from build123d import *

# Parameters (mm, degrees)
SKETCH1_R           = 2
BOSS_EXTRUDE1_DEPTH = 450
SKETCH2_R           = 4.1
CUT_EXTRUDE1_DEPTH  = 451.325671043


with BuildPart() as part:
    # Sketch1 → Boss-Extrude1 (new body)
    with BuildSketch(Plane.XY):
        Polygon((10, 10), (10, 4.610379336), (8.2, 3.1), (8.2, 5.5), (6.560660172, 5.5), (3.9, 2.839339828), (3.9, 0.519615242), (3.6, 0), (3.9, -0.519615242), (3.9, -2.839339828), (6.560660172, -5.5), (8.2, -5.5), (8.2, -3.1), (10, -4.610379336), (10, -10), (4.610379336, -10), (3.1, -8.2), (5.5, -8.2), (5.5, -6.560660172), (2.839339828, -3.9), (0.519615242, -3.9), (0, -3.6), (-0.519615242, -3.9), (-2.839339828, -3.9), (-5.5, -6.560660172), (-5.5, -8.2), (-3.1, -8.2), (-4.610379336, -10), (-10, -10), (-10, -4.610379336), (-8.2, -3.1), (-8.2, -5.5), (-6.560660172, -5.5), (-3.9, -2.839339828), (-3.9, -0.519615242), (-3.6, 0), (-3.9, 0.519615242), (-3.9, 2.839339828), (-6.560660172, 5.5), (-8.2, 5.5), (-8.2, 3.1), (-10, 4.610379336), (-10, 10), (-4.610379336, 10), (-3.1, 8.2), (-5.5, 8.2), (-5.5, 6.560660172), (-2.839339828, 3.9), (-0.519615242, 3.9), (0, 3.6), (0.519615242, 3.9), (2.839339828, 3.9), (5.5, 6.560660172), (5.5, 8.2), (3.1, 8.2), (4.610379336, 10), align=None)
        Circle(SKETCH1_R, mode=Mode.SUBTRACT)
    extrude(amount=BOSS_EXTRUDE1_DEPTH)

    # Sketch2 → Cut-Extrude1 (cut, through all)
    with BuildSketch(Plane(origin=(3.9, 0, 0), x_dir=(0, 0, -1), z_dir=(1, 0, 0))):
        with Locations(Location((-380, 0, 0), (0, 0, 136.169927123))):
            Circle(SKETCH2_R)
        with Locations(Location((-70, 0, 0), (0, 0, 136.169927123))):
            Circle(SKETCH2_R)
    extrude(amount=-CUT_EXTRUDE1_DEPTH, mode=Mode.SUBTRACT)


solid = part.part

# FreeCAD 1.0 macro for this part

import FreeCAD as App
import Part
import Sketcher
from FreeCAD import Vector
Q = App.Units.Quantity


def add_polygon(sketch, points):
    """Adds a closed chain of lines whose ends are joined by coincident constraints."""
    first, n = sketch.GeometryCount, len(points)
    for a, b in zip(points, points[1:] + points[:1]):
        sketch.addGeometry(Part.LineSegment(App.Vector(*a, 0), App.Vector(*b, 0)), False)
    for i in range(n):
        sketch.addConstraint(Sketcher.Constraint("Coincident", first + i, 2, first + (i + 1) % n, 1))

doc = App.newDocument("Part")
body = doc.addObject("PartDesign::Body", "Body")

sketch1 = body.newObject("Sketcher::SketchObject", "Sketch")
sketch1.AttachmentSupport = (doc.getObject("XY_Plane"), [""])
sketch1.MapMode = "FlatFace"
add_polygon(sketch1, [(10, 4.6), (10, 10), (4.6, 10), (3.1, 8.2), (5.5, 8.2), (5.5, 6.6), (2.8, 3.9), (0.5, 3.9), (0, 3.6), (-0.5, 3.9), (-2.8, 3.9), (-5.5, 6.6), (-5.5, 8.2), (-3.1, 8.2), (-4.6, 10), (-10, 10), (-10, 4.6), (-8.2, 3.1), (-8.2, 5.5), (-6.6, 5.5), (-3.9, 2.8), (-3.9, 0.5), (-3.6, 0), (-3.9, -0.5), (-3.9, -2.8), (-6.6, -5.5), (-8.2, -5.5), (-8.2, -3.1), (-10, -4.6), (-10, -10), (-4.6, -10), (-3.1, -8.2), (-5.5, -8.2), (-5.5, -6.6), (-2.8, -3.9), (-0.5, -3.9), (0, -3.6), (0.5, -3.9), (2.8, -3.9), (5.5, -6.6), (5.5, -8.2), (3.1, -8.2), (4.6, -10), (10, -10), (10, -4.6), (8.2, -3.1), (8.2, -5.5), (6.6, -5.5), (3.9, -2.8), (3.9, -0.5), (3.6, 0), (3.9, 0.5), (3.9, 2.8), (6.6, 5.5), (8.2, 5.5), (8.2, 3.1)])
sketch1.addGeometry(Part.Circle(Vector(0, 0, 0), Vector(0, 0, 1), 2), False)
sketch1.addConstraint([
    Sketcher.Constraint("Vertical", 0),
    Sketcher.Constraint("Horizontal", 1),
    Sketcher.Constraint("Horizontal", 3),
    Sketcher.Constraint("Vertical", 4),
    Sketcher.Constraint("Horizontal", 6),
    Sketcher.Constraint("Horizontal", 9),
    Sketcher.Constraint("Vertical", 11),
    Sketcher.Constraint("Horizontal", 12),
    Sketcher.Constraint("Horizontal", 14),
    Sketcher.Constraint("Vertical", 15),
    Sketcher.Constraint("Vertical", 17),
    Sketcher.Constraint("Horizontal", 18),
    Sketcher.Constraint("Vertical", 20),
    Sketcher.Constraint("Vertical", 23),
    Sketcher.Constraint("Horizontal", 25),
    Sketcher.Constraint("Vertical", 26),
    Sketcher.Constraint("Vertical", 28),
    Sketcher.Constraint("Horizontal", 29),
    Sketcher.Constraint("Horizontal", 31),
    Sketcher.Constraint("Vertical", 32),
    Sketcher.Constraint("Horizontal", 34),
    Sketcher.Constraint("Horizontal", 37),
    Sketcher.Constraint("Vertical", 39),
    Sketcher.Constraint("Horizontal", 40),
    Sketcher.Constraint("Horizontal", 42),
    Sketcher.Constraint("Vertical", 43),
    Sketcher.Constraint("Vertical", 45),
    Sketcher.Constraint("Horizontal", 46),
    Sketcher.Constraint("Vertical", 48),
    Sketcher.Constraint("Vertical", 51),
    Sketcher.Constraint("Horizontal", 53),
    Sketcher.Constraint("Vertical", 54),
    Sketcher.Constraint("Coincident", 56, 3, -1, 1),
    Sketcher.Constraint("Symmetric", 0, 2, 28, 2, -1, 1),
    Sketcher.Constraint("Symmetric", 2, 2, 30, 2, -1, 1),
    Sketcher.Constraint("Symmetric", 4, 2, 32, 2, -1, 1),
    Sketcher.Constraint("Symmetric", 5, 2, 33, 2, -1, 1),
    Sketcher.Constraint("Symmetric", 7, 2, 35, 2, -1, 1),
    Sketcher.Constraint("Symmetric", 8, 2, 36, 2, -1, 1),
    Sketcher.Constraint("Symmetric", 10, 2, 38, 2, -1, 1),
    Sketcher.Constraint("Symmetric", 12, 2, 40, 2, -1, 1),
    Sketcher.Constraint("Symmetric", 13, 2, 41, 2, -1, 1),
    Sketcher.Constraint("Symmetric", 15, 2, 43, 2, -1, 1),
    Sketcher.Constraint("Symmetric", 16, 2, 44, 2, -1, 1),
    Sketcher.Constraint("Symmetric", 18, 2, 46, 2, -1, 1),
    Sketcher.Constraint("Symmetric", 19, 2, 47, 2, -1, 1),
    Sketcher.Constraint("Symmetric", 21, 2, 49, 2, -1, 1),
    Sketcher.Constraint("Symmetric", 22, 2, 50, 2, -1, 1),
    Sketcher.Constraint("Symmetric", 24, 2, 52, 2, -1, 1),
    Sketcher.Constraint("Symmetric", 26, 2, 54, 2, -1, 1),
    Sketcher.Constraint("Symmetric", 6, 2, 8, 2, -2),
    Sketcher.Constraint("Symmetric", 4, 2, 10, 2, -2),
    Sketcher.Constraint("Symmetric", 2, 2, 12, 2, -2),
    Sketcher.Constraint("Symmetric", 1, 2, 13, 2, -2),
    Sketcher.Constraint("Symmetric", 27, 2, 43, 2, -2),
    Sketcher.Constraint("Symmetric", 26, 2, 44, 2, -2),
    Sketcher.Constraint("Symmetric", 24, 2, 46, 2, -2),
    Sketcher.Constraint("Symmetric", 23, 2, 47, 2, -2),
    Sketcher.Constraint("PointOnObject", 7, 2, -2),
    Sketcher.Constraint("PointOnObject", 21, 2, -1),
    Sketcher.Constraint("Perpendicular", 5, 10),
    Sketcher.Constraint("Perpendicular", 2, 16),
    Sketcher.Constraint("Parallel", 10, 19),
    Sketcher.Constraint("Perpendicular", 7, 21),
    Sketcher.Constraint("Perpendicular", 8, 22),
    Sketcher.Constraint("Perpendicular", 19, 24),
    Sketcher.Constraint("Perpendicular", 16, 30),
    Sketcher.Constraint("Perpendicular", 21, 35),
    Sketcher.Constraint("Perpendicular", 33, 38),
    Sketcher.Constraint("Perpendicular", 35, 49),
    Sketcher.Constraint("Perpendicular", 47, 52),
    Sketcher.Constraint("Perpendicular", 41, 55),
    Sketcher.Constraint("Equal", 42, 0),
    Sketcher.Constraint("Equal", 53, 4),
    Sketcher.Constraint("Equal", 40, 17),
    Sketcher.Constraint("Equal", 37, 20),
    Sketcher.Constraint("Equal", 13, 16),
    Sketcher.Constraint("Equal", 10, 19),
    Sketcher.Constraint("Equal", 8, 21),
    Sketcher.Constraint("Diameter", 56, 4.0),
    Sketcher.Constraint("Angle", 2, Q("-130 deg")),
    Sketcher.Constraint("Angle", 7, Q("-150 deg")),
    Sketcher.Constraint("DistanceX", 3, 1, 3, 2, 2.4),
    Sketcher.Constraint("DistanceX", -1, 1, 0, 2, 10.0),
    Sketcher.Constraint("Distance", 7, 0.6),
    Sketcher.Constraint("DistanceX", -1, 1, 2, 2, 3.1),
    Sketcher.Constraint("DistanceY", -1, 1, 2, 2, 8.2),
    Sketcher.Constraint("DistanceY", -1, 1, 5, 2, 3.9),
    Sketcher.Constraint("DistanceX", 18, 1, 18, 2, 1.63934),
])
pad1 = body.newObject("PartDesign::Pad", "Pad")
pad1.Profile = sketch1
pad1.Length = 450

sketch2 = body.newObject("Sketcher::SketchObject", "Sketch001")
sketch2.AttachmentSupport = (doc.getObject("YZ_Plane"), [""])
sketch2.MapMode = "FlatFace"
sketch2.AttachmentOffset = App.Placement(Vector(0, 0, 3.9), App.Rotation())
sketch2.addGeometry([
    Part.Circle(Vector(0, 380, 0), Vector(0, 0, 1), 4.1),
    Part.Circle(Vector(0, 70, 0), Vector(0, 0, 1), 4.1),
], False)
sketch2.addConstraint([
    Sketcher.Constraint("Equal", 0, 1),
    Sketcher.Constraint("PointOnObject", 0, 3, -2),
    Sketcher.Constraint("PointOnObject", 1, 3, -2),
    Sketcher.Constraint("Diameter", 0, 8.2),
    Sketcher.Constraint("DistanceY", -1, 1, 0, 3, 380.0),
    Sketcher.Constraint("DistanceY", -1, 1, 1, 3, 70.0),
])
pocket1 = body.newObject("PartDesign::Pocket", "Pocket")
pocket1.Profile = sketch2
pocket1.Type = "ThroughAll"

doc.recompute()
